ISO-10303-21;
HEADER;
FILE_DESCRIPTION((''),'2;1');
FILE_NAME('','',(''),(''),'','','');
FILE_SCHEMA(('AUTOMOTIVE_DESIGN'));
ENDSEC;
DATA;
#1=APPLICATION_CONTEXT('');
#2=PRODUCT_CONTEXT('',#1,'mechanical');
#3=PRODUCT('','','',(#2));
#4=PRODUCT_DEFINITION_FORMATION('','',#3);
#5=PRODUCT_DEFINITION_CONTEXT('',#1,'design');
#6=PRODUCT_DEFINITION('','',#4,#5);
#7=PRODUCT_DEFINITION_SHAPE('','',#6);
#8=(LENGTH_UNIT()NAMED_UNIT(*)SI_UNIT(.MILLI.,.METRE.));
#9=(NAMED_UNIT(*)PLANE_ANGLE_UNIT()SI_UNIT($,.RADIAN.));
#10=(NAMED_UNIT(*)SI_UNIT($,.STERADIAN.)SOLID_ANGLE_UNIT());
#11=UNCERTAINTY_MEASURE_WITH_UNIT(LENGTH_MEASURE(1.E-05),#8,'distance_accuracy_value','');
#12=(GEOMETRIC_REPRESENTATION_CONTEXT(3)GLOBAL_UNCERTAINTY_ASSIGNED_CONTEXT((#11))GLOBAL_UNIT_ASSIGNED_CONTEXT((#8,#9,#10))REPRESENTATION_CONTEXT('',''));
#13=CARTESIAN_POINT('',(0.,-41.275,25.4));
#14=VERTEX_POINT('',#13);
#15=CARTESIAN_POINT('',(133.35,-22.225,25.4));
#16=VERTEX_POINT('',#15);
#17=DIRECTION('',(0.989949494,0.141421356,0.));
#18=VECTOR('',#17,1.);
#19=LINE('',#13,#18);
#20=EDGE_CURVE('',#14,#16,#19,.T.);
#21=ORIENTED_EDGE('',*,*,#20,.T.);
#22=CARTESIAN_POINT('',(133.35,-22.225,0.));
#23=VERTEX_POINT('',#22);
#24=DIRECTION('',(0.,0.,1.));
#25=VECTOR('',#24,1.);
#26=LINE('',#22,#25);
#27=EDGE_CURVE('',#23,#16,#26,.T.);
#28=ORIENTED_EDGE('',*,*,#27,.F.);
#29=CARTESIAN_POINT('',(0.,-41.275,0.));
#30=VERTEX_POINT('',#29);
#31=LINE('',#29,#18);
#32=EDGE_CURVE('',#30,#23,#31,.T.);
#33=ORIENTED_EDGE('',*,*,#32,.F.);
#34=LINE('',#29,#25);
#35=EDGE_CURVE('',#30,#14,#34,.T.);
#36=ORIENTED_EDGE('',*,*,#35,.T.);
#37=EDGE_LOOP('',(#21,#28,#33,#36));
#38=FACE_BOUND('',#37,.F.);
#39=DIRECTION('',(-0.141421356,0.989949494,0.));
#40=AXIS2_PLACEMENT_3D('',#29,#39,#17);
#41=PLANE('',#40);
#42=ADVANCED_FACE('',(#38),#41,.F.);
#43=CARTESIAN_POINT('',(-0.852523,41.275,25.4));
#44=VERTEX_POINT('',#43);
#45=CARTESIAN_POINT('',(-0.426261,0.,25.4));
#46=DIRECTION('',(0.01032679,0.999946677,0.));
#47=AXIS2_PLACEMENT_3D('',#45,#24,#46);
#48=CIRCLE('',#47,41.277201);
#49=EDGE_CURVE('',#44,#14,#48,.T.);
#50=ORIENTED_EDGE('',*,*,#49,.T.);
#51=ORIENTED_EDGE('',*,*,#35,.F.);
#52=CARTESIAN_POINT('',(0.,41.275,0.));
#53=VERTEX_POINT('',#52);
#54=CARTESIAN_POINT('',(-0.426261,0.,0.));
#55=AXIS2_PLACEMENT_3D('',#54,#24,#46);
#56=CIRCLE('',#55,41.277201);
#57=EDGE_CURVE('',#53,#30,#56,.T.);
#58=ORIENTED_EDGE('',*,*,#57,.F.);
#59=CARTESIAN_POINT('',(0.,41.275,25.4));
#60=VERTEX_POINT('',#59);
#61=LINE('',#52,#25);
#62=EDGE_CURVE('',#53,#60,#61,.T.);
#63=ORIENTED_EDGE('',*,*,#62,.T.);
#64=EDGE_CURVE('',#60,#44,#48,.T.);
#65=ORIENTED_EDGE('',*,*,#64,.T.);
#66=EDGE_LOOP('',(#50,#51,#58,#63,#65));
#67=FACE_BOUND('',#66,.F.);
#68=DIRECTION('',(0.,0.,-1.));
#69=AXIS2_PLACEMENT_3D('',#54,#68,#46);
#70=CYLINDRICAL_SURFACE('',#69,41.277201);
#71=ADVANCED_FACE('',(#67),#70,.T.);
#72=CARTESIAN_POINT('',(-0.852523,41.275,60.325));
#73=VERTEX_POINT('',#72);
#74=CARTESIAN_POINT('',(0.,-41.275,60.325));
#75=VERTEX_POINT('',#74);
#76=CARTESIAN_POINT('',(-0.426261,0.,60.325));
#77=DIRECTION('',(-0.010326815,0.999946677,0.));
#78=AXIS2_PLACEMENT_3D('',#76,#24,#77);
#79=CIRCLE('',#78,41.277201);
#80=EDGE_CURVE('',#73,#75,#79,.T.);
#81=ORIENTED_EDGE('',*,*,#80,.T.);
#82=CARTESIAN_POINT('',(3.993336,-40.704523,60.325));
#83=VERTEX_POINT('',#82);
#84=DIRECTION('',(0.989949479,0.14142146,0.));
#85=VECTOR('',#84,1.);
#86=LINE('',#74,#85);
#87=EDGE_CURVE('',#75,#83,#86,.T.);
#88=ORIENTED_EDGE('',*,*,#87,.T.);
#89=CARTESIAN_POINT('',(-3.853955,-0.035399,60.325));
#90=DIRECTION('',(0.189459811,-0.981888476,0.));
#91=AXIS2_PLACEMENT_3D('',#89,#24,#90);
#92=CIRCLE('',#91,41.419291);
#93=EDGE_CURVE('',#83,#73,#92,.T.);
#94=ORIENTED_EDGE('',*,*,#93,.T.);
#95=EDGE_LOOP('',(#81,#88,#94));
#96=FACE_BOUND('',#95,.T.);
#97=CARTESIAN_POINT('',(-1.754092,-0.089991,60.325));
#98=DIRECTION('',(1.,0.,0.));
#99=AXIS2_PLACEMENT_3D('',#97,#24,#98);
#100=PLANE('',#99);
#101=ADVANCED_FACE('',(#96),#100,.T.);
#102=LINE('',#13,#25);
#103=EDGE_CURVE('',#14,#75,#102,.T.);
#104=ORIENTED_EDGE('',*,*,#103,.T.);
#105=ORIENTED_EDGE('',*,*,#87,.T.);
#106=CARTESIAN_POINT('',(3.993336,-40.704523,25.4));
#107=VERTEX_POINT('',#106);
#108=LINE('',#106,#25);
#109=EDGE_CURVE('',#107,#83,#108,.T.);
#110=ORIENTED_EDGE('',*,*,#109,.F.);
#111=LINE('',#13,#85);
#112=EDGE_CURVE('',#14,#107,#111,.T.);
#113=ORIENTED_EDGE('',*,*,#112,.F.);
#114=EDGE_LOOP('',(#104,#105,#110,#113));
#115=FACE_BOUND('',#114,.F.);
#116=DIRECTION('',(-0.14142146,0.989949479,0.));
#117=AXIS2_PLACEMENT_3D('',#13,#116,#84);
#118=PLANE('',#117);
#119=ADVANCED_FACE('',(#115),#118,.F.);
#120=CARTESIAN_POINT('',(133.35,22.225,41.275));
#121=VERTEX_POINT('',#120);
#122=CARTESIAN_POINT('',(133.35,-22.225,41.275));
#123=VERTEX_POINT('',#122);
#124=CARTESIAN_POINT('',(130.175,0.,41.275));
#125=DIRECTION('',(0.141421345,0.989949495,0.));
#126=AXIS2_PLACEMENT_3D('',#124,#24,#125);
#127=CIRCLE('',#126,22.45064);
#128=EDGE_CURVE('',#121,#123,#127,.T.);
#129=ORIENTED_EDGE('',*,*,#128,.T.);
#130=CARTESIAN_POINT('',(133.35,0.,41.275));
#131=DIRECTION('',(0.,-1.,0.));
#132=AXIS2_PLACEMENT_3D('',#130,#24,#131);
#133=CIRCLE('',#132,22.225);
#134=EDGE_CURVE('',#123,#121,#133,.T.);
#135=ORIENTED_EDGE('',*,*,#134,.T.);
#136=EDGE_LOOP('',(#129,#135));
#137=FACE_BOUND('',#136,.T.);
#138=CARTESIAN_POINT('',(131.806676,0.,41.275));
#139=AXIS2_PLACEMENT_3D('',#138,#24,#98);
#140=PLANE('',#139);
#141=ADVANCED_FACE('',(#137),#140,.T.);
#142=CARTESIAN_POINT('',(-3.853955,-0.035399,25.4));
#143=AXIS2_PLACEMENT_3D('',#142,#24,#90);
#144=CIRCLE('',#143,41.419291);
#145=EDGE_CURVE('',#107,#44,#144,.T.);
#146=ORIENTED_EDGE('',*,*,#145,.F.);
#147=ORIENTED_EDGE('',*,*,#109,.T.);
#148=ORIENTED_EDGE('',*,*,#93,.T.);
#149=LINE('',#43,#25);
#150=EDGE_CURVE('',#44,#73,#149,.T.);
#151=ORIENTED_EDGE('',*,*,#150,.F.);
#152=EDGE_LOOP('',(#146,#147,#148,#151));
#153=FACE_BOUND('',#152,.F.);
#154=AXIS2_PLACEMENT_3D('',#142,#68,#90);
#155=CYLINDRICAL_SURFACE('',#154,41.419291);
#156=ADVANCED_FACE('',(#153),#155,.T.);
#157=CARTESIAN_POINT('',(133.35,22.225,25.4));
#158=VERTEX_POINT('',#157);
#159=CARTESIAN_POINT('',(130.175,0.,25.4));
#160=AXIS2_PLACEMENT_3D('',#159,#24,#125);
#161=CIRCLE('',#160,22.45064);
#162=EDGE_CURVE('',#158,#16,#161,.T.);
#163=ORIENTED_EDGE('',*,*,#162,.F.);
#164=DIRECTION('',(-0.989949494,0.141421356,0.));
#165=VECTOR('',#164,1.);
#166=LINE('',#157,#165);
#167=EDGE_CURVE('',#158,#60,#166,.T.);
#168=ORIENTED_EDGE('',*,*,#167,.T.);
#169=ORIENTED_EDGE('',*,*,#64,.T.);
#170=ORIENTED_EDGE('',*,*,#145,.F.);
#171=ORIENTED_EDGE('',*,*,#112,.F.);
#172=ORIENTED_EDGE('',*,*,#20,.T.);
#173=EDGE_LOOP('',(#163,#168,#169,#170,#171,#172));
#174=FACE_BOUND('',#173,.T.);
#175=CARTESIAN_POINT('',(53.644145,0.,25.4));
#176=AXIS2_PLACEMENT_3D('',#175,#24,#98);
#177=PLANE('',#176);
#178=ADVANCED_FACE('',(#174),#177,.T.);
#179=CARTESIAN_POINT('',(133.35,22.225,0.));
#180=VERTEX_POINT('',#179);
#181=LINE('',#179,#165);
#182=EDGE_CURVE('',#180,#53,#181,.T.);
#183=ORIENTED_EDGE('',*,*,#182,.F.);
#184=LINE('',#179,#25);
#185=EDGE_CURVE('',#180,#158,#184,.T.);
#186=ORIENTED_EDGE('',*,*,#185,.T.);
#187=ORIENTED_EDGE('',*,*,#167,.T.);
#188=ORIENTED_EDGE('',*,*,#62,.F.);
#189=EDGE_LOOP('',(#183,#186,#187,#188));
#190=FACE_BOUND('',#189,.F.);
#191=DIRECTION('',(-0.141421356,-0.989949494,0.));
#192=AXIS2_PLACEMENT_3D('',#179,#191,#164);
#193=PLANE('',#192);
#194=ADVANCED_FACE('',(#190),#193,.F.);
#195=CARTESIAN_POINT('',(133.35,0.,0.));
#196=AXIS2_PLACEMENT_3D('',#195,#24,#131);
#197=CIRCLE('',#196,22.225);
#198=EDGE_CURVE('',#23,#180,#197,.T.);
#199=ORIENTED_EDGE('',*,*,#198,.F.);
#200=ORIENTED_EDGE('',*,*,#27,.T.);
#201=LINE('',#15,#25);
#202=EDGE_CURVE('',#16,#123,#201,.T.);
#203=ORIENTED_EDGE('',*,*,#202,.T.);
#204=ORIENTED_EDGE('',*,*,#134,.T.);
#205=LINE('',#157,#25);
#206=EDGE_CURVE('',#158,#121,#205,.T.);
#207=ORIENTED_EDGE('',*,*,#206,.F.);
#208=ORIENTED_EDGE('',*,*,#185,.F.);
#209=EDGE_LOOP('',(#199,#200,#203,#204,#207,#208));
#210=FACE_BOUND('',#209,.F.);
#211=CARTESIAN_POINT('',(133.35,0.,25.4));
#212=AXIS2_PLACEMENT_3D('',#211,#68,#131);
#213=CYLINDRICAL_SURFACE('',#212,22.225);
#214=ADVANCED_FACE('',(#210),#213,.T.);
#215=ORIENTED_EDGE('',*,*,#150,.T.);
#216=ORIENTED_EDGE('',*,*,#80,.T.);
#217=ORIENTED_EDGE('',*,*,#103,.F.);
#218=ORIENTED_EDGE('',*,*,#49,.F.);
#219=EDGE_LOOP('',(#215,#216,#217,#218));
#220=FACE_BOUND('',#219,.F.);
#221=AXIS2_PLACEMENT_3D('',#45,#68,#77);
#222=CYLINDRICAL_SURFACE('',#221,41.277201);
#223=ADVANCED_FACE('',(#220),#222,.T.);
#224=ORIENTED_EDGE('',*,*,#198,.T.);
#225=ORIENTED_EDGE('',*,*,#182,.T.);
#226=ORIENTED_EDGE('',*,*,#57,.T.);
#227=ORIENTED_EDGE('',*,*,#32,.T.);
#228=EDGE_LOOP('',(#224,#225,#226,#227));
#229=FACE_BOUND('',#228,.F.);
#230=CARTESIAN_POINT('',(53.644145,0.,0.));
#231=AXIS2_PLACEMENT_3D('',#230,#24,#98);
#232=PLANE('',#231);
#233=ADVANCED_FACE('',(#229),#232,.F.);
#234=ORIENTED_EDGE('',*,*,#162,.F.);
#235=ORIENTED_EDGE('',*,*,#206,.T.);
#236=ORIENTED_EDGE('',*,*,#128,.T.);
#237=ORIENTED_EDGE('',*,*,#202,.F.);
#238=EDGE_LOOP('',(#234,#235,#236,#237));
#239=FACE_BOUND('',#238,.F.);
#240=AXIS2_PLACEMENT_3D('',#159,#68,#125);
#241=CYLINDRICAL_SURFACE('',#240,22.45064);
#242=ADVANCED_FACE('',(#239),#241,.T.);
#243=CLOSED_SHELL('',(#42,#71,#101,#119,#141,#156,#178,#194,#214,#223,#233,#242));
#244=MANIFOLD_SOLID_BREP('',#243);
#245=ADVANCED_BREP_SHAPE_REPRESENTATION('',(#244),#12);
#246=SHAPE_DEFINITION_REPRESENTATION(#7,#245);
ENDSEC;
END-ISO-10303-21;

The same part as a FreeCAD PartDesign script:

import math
import FreeCAD as App
import Part
import Sketcher
Q = App.Units.Quantity

doc = App.newDocument("Part")
body = doc.addObject("PartDesign::Body", "Body")

# Sketch on XY plane
sketch1 = body.newObject("Sketcher::SketchObject", "Sketch")
sketch1.AttachmentSupport = (doc.getObject("XY_Plane"), [""])
sketch1.MapMode = "FlatFace"
sketch1.addGeometry(Part.LineSegment(App.Vector(133.35, 22.225, 0), App.Vector(0, 41.275, 0)), False)
sketch1.addGeometry(Part.ArcOfCircle(Part.Circle(App.Vector(-0.426261, 0, 0), App.Vector(0, 0, 1), 41.277201), math.radians(89.408308), math.radians(270.591692)), False)
sketch1.addGeometry(Part.LineSegment(App.Vector(0, -41.275, 0), App.Vector(133.35, -22.225, 0)), False)
sketch1.addGeometry(Part.ArcOfCircle(Part.Circle(App.Vector(133.35, 0, 0), App.Vector(0, 0, 1), 22.225), math.radians(-90), math.radians(90)), False)
sketch1.addConstraint(Sketcher.Constraint("Coincident", 0, 2, 1, 1))
sketch1.addConstraint(Sketcher.Constraint("Coincident", 1, 2, 2, 1))
sketch1.addConstraint(Sketcher.Constraint("Coincident", 2, 2, 3, 1))
sketch1.addConstraint(Sketcher.Constraint("Coincident", 3, 2, 0, 1))
sketch1.addConstraint(Sketcher.Constraint("Symmetric", 0, 2, 1, 2, -1, 1))
sketch1.addConstraint(Sketcher.Constraint("Symmetric", 2, 2, 3, 2, -1))
sketch1.addConstraint(Sketcher.Constraint("PointOnObject", 1, 3, -1))
sketch1.addConstraint(Sketcher.Constraint("Vertical", 3, 3, 2, 2))
sketch1.addConstraint(Sketcher.Constraint("Radius", 3, Q("0.875 in")))
sketch1.addConstraint(Sketcher.Constraint("DistanceY", 2, 2, 0, 2, Q("2.5 in")))
sketch1.addConstraint(Sketcher.Constraint("DistanceX", -1, 1, 3, 3, Q("5.25 in")))
sketch1.addConstraint(Sketcher.Constraint("Radius", 1, Q("41.277201 mm")))
pad1 = body.newObject("PartDesign::Pad", "Pad")
pad1.Profile = sketch1
pad1.Length = Q("1 in")

# Sketch on XY plane
sketch2 = body.newObject("Sketcher::SketchObject", "Sketch001")
sketch2.AttachmentSupport = (doc.getObject("XY_Plane"), [""])
sketch2.MapMode = "FlatFace"
sketch2.AttachmentOffset = App.Placement(App.Vector(0, 0, 1 * 25.4), App.Rotation())
sketch2.addGeometry(Part.ArcOfCircle(Part.Circle(App.Vector(-0.426261, 0, 0), App.Vector(0, 0, 1), 41.277201), math.radians(90.591693), math.radians(270.591692)), False)
sketch2.addGeometry(Part.LineSegment(App.Vector(0, -41.275, 0), App.Vector(3.993336, -40.704523, 0)), False)
sketch2.addGeometry(Part.ArcOfCircle(Part.Circle(App.Vector(-3.853955, -0.035399, 0), App.Vector(0, 0, 1), 41.419291), math.radians(-79.078739), math.radians(85.844442)), False)
sketch2.addConstraint(Sketcher.Constraint("Coincident", 0, 2, 1, 1))
sketch2.addConstraint(Sketcher.Constraint("Coincident", 1, 2, 2, 1))
sketch2.addConstraint(Sketcher.Constraint("Coincident", 2, 2, 0, 1))
sketch2.addConstraint(Sketcher.Constraint("PointOnObject", 0, 3, -1))
sketch2.addConstraint(Sketcher.Constraint("PointOnObject", 0, 2, -2))
sketch2.addConstraint(Sketcher.Constraint("Radius", 0, Q("41.277201 mm")))
sketch2.addConstraint(Sketcher.Constraint("DistanceY", 0, 2, 2, 2, Q("3.25 in")))
sketch2.addConstraint(Sketcher.Constraint("DistanceY", 0, 2, -1, 1, Q("1.625 in")))
sketch2.addConstraint(Sketcher.Constraint("Radius", 2, Q("41.419291 mm")))
sketch2.addConstraint(Sketcher.Constraint("DistanceX", 0, 3, 1, 2, Q("0.1739999 in")))
sketch2.addConstraint(Sketcher.Constraint("DistanceY", 2, 3, -1, 1, Q("0.035399 mm")))
pad2 = body.newObject("PartDesign::Pad", "Pad001")
pad2.Profile = sketch2
pad2.Length = Q("1.375 in")

# Sketch on XY plane
sketch3 = body.newObject("Sketcher::SketchObject", "Sketch002")
sketch3.AttachmentSupport = (doc.getObject("XY_Plane"), [""])
sketch3.MapMode = "FlatFace"
sketch3.AttachmentOffset = App.Placement(App.Vector(0, 0, 1 * 25.4), App.Rotation())
sketch3.addGeometry(Part.ArcOfCircle(Part.Circle(App.Vector(133.35, 0, 0), App.Vector(0, 0, 1), 22.225), math.radians(-90), math.radians(90)), False)
sketch3.addGeometry(Part.ArcOfCircle(Part.Circle(App.Vector(130.175, 0, 0), App.Vector(0, 0, 1), 22.45064), math.radians(81.869898), math.radians(278.130102)), False)
sketch3.addConstraint(Sketcher.Constraint("Coincident", 0, 1, 1, 2))
sketch3.addConstraint(Sketcher.Constraint("Coincident", 1, 1, 0, 2))
sketch3.addConstraint(Sketcher.Constraint("Symmetric", 0, 1, 1, 1, -1))
sketch3.addConstraint(Sketcher.Constraint("Radius", 0, Q("0.875 in")))
sketch3.addConstraint(Sketcher.Constraint("DistanceX", -1, 1, 0, 3, Q("5.25 in")))
sketch3.addConstraint(Sketcher.Constraint("DistanceX", -1, 1, 0, 1, Q("5.25 in")))
sketch3.addConstraint(Sketcher.Constraint("DistanceX", -1, 1, 1, 3, Q("5.125 in")))
pad3 = body.newObject("PartDesign::Pad", "Pad002")
pad3.Profile = sketch3
pad3.Length = Q("0.625 in")

doc.recompute()
